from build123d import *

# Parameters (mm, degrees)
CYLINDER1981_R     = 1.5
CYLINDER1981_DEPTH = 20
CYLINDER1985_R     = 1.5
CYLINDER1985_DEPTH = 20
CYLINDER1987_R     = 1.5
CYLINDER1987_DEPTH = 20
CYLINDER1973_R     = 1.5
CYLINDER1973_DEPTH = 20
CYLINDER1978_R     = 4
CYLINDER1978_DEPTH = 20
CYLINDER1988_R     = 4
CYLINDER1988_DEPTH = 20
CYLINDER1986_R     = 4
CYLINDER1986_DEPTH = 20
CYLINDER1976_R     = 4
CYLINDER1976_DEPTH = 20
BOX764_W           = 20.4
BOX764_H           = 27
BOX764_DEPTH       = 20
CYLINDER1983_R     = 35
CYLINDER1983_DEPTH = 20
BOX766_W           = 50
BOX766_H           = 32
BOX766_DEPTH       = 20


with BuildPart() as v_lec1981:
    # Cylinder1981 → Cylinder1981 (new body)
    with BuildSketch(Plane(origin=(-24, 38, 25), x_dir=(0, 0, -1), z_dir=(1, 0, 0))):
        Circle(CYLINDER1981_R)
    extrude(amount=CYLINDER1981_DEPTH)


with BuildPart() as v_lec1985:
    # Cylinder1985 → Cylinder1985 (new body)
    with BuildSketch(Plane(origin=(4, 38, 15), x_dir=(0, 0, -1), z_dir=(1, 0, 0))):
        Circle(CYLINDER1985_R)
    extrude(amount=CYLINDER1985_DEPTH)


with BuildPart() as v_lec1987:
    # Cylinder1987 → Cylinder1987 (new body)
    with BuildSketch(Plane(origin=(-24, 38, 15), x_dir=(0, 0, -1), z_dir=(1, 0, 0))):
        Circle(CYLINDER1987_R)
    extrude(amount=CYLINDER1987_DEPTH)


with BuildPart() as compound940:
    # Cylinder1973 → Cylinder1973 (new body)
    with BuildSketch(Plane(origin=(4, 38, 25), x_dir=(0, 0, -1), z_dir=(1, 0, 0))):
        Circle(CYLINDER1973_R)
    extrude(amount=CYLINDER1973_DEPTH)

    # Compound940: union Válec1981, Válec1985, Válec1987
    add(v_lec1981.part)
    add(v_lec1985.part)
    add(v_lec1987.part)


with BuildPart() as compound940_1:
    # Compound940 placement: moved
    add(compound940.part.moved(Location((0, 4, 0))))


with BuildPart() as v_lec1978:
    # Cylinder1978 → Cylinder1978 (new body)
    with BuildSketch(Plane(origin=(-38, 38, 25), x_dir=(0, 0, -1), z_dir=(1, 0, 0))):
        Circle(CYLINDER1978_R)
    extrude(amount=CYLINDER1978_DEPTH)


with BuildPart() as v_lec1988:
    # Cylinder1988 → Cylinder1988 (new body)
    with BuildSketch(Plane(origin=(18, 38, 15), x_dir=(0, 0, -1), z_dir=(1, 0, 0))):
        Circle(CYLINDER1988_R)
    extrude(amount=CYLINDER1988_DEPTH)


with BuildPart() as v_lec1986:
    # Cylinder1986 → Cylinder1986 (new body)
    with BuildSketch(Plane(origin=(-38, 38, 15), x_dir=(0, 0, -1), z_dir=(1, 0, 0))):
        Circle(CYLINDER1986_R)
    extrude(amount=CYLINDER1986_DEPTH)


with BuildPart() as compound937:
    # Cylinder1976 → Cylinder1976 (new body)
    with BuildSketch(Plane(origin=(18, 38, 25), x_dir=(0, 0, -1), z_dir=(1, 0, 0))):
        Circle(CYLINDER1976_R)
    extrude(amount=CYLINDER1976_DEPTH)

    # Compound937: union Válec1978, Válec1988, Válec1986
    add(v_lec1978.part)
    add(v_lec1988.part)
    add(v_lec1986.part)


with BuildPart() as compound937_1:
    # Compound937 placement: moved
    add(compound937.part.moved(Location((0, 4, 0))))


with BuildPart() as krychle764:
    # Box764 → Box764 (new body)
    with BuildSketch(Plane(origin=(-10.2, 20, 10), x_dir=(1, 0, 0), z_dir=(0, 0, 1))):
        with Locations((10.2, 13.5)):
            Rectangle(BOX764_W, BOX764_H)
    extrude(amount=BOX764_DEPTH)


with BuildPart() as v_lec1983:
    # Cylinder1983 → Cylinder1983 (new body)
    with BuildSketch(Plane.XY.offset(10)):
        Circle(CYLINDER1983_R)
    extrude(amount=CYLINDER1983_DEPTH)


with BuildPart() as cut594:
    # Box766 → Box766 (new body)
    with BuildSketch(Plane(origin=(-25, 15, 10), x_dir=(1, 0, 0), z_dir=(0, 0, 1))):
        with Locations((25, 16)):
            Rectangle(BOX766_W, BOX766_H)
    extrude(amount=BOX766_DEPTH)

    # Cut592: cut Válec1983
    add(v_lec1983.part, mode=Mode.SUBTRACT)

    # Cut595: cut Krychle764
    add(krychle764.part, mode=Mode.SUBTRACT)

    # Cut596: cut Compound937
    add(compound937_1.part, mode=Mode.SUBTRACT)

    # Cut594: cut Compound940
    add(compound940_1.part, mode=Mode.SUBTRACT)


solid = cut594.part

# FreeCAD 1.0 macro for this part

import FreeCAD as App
import Part
import Sketcher
from FreeCAD import Vector
Q = App.Units.Quantity

doc = App.newDocument("Part")
body = doc.addObject("PartDesign::Body", "Body")

sketch1 = body.newObject("Sketcher::SketchObject", "Sketch")
sketch1.AttachmentSupport = (doc.getObject("YZ_Plane"), [""])
sketch1.MapMode = "FlatFace"
sketch1.AttachmentOffset = App.Placement(Vector(0, 0, -24), App.Rotation())
sketch1.addGeometry(Part.Circle(Vector(38, 25, 0), Vector(0, 0, 1), 1.5), False)
sketch1.addConstraint(Sketcher.Constraint("Diameter", 0, Q("3 mm")))
sketch1.addConstraint(Sketcher.Constraint("DistanceX", -1, 1, 0, 3, Q("38 mm")))
sketch1.addConstraint(Sketcher.Constraint("DistanceY", -1, 1, 0, 3, Q("25 mm")))
pad1 = body.newObject("PartDesign::Pad", "Pad")
pad1.Profile = sketch1
pad1.Length = 20
body2 = doc.addObject("PartDesign::Body", "Body001")

sketch2 = body2.newObject("Sketcher::SketchObject", "Sketch001")
sketch2.AttachmentSupport = (doc.getObject("YZ_Plane001"), [""])
sketch2.MapMode = "FlatFace"
sketch2.AttachmentOffset = App.Placement(Vector(0, 0, 4), App.Rotation())
sketch2.addGeometry(Part.Circle(Vector(38, 15, 0), Vector(0, 0, 1), 1.5), False)
sketch2.addConstraint(Sketcher.Constraint("Diameter", 0, Q("3 mm")))
sketch2.addConstraint(Sketcher.Constraint("DistanceX", -1, 1, 0, 3, Q("38 mm")))
sketch2.addConstraint(Sketcher.Constraint("DistanceY", -1, 1, 0, 3, Q("15 mm")))
pad2 = body2.newObject("PartDesign::Pad", "Pad001")
pad2.Profile = sketch2
pad2.Length = 20
body3 = doc.addObject("PartDesign::Body", "Body002")

sketch3 = body3.newObject("Sketcher::SketchObject", "Sketch002")
sketch3.AttachmentSupport = (doc.getObject("YZ_Plane002"), [""])
sketch3.MapMode = "FlatFace"
sketch3.AttachmentOffset = App.Placement(Vector(0, 0, -24), App.Rotation())
sketch3.addGeometry(Part.Circle(Vector(38, 15, 0), Vector(0, 0, 1), 1.5), False)
sketch3.addConstraint(Sketcher.Constraint("Diameter", 0, Q("3 mm")))
sketch3.addConstraint(Sketcher.Constraint("DistanceX", -1, 1, 0, 3, Q("38 mm")))
sketch3.addConstraint(Sketcher.Constraint("DistanceY", -1, 1, 0, 3, Q("15 mm")))
pad3 = body3.newObject("PartDesign::Pad", "Pad002")
pad3.Profile = sketch3
pad3.Length = 20
body4 = doc.addObject("PartDesign::Body", "Body003")
body4.AllowCompound = True

sketch4 = body4.newObject("Sketcher::SketchObject", "Sketch003")
sketch4.AttachmentSupport = (doc.getObject("YZ_Plane003"), [""])
sketch4.MapMode = "FlatFace"
sketch4.AttachmentOffset = App.Placement(Vector(0, 0, 4), App.Rotation())
sketch4.addGeometry(Part.Circle(Vector(38, 25, 0), Vector(0, 0, 1), 1.5), False)
sketch4.addConstraint(Sketcher.Constraint("Diameter", 0, Q("3 mm")))
sketch4.addConstraint(Sketcher.Constraint("DistanceX", -1, 1, 0, 3, Q("38 mm")))
sketch4.addConstraint(Sketcher.Constraint("DistanceY", -1, 1, 0, 3, Q("25 mm")))
pad4 = body4.newObject("PartDesign::Pad", "Pad003")
pad4.Profile = sketch4
pad4.Length = 20
doc.recompute()

boolean = body4.newObject("PartDesign::Boolean", "Boolean")
boolean.Type = "Fuse"
boolean.addObjects([body])
doc.recompute()

boolean2 = body4.newObject("PartDesign::Boolean", "Boolean001")
boolean2.Type = "Fuse"
boolean2.addObjects([body2])
doc.recompute()

boolean3 = body4.newObject("PartDesign::Boolean", "Boolean002")
boolean3.Type = "Fuse"
boolean3.addObjects([body3])
body5 = doc.addObject("PartDesign::Body", "Body004")
body5.AllowCompound = True
doc.recompute()

body4.Placement = App.Placement(Vector(0, 4, 0), App.Rotation(Vector(0, 0, 1), 0))
boolean4 = body5.newObject("PartDesign::Boolean", "Boolean003")
boolean4.Type = "Fuse"
boolean4.addObjects([body4])
body6 = doc.addObject("PartDesign::Body", "Body005")

sketch5 = body6.newObject("Sketcher::SketchObject", "Sketch004")
sketch5.AttachmentSupport = (doc.getObject("YZ_Plane005"), [""])
sketch5.MapMode = "FlatFace"
sketch5.AttachmentOffset = App.Placement(Vector(0, 0, -38), App.Rotation())
sketch5.addGeometry(Part.Circle(Vector(38, 25, 0), Vector(0, 0, 1), 4), False)
sketch5.addConstraint(Sketcher.Constraint("Diameter", 0, Q("8 mm")))
sketch5.addConstraint(Sketcher.Constraint("DistanceX", -1, 1, 0, 3, Q("38 mm")))
sketch5.addConstraint(Sketcher.Constraint("DistanceY", -1, 1, 0, 3, Q("25 mm")))
pad5 = body6.newObject("PartDesign::Pad", "Pad004")
pad5.Profile = sketch5
pad5.Length = 20
body7 = doc.addObject("PartDesign::Body", "Body006")

sketch6 = body7.newObject("Sketcher::SketchObject", "Sketch005")
sketch6.AttachmentSupport = (doc.getObject("YZ_Plane006"), [""])
sketch6.MapMode = "FlatFace"
sketch6.AttachmentOffset = App.Placement(Vector(0, 0, 18), App.Rotation())
sketch6.addGeometry(Part.Circle(Vector(38, 15, 0), Vector(0, 0, 1), 4), False)
sketch6.addConstraint(Sketcher.Constraint("Diameter", 0, Q("8 mm")))
sketch6.addConstraint(Sketcher.Constraint("DistanceX", -1, 1, 0, 3, Q("38 mm")))
sketch6.addConstraint(Sketcher.Constraint("DistanceY", -1, 1, 0, 3, Q("15 mm")))
pad6 = body7.newObject("PartDesign::Pad", "Pad005")
pad6.Profile = sketch6
pad6.Length = 20
body8 = doc.addObject("PartDesign::Body", "Body007")

sketch7 = body8.newObject("Sketcher::SketchObject", "Sketch006")
sketch7.AttachmentSupport = (doc.getObject("YZ_Plane007"), [""])
sketch7.MapMode = "FlatFace"
sketch7.AttachmentOffset = App.Placement(Vector(0, 0, -38), App.Rotation())
sketch7.addGeometry(Part.Circle(Vector(38, 15, 0), Vector(0, 0, 1), 4), False)
sketch7.addConstraint(Sketcher.Constraint("Diameter", 0, Q("8 mm")))
sketch7.addConstraint(Sketcher.Constraint("DistanceX", -1, 1, 0, 3, Q("38 mm")))
sketch7.addConstraint(Sketcher.Constraint("DistanceY", -1, 1, 0, 3, Q("15 mm")))
pad7 = body8.newObject("PartDesign::Pad", "Pad006")
pad7.Profile = sketch7
pad7.Length = 20
body9 = doc.addObject("PartDesign::Body", "Body008")
body9.AllowCompound = True

sketch8 = body9.newObject("Sketcher::SketchObject", "Sketch007")
sketch8.AttachmentSupport = (doc.getObject("YZ_Plane008"), [""])
sketch8.MapMode = "FlatFace"
sketch8.AttachmentOffset = App.Placement(Vector(0, 0, 18), App.Rotation())
sketch8.addGeometry(Part.Circle(Vector(38, 25, 0), Vector(0, 0, 1), 4), False)
sketch8.addConstraint(Sketcher.Constraint("Diameter", 0, Q("8 mm")))
sketch8.addConstraint(Sketcher.Constraint("DistanceX", -1, 1, 0, 3, Q("38 mm")))
sketch8.addConstraint(Sketcher.Constraint("DistanceY", -1, 1, 0, 3, Q("25 mm")))
pad8 = body9.newObject("PartDesign::Pad", "Pad007")
pad8.Profile = sketch8
pad8.Length = 20
doc.recompute()

boolean5 = body9.newObject("PartDesign::Boolean", "Boolean004")
boolean5.Type = "Fuse"
boolean5.addObjects([body6])
doc.recompute()

boolean6 = body9.newObject("PartDesign::Boolean", "Boolean005")
boolean6.Type = "Fuse"
boolean6.addObjects([body7])
doc.recompute()

boolean7 = body9.newObject("PartDesign::Boolean", "Boolean006")
boolean7.Type = "Fuse"
boolean7.addObjects([body8])
body10 = doc.addObject("PartDesign::Body", "Body009")
body10.AllowCompound = True
doc.recompute()

body9.Placement = App.Placement(Vector(0, 4, 0), App.Rotation(Vector(0, 0, 1), 0))
boolean8 = body10.newObject("PartDesign::Boolean", "Boolean007")
boolean8.Type = "Fuse"
boolean8.addObjects([body9])
body11 = doc.addObject("PartDesign::Body", "Body010")

sketch9 = body11.newObject("Sketcher::SketchObject", "Sketch008")
sketch9.AttachmentSupport = (doc.getObject("XY_Plane010"), [""])
sketch9.MapMode = "FlatFace"
sketch9.AttachmentOffset = App.Placement(Vector(0, 0, 10), App.Rotation())
sketch9.addGeometry(Part.LineSegment(Vector(-10, 47, 0), Vector(-10, 20, 0)), False)
sketch9.addGeometry(Part.LineSegment(Vector(-10, 20, 0), Vector(10, 20, 0)), False)
sketch9.addGeometry(Part.LineSegment(Vector(10, 20, 0), Vector(10, 47, 0)), False)
sketch9.addGeometry(Part.LineSegment(Vector(10, 47, 0), Vector(-10, 47, 0)), False)
sketch9.addConstraint(Sketcher.Constraint("Coincident", 0, 2, 1, 1))
sketch9.addConstraint(Sketcher.Constraint("Coincident", 1, 2, 2, 1))
sketch9.addConstraint(Sketcher.Constraint("Coincident", 2, 2, 3, 1))
sketch9.addConstraint(Sketcher.Constraint("Coincident", 3, 2, 0, 1))
sketch9.addConstraint(Sketcher.Constraint("Vertical", 0))
sketch9.addConstraint(Sketcher.Constraint("Horizontal", 1))
sketch9.addConstraint(Sketcher.Constraint("Vertical", 2))
sketch9.addConstraint(Sketcher.Constraint("Horizontal", 3))
sketch9.addConstraint(Sketcher.Constraint("DistanceY", 0, 2, 0, 1, Q("27 mm")))
sketch9.addConstraint(Sketcher.Constraint("DistanceX", 1, 1, 1, 2, Q("20.4 mm")))
sketch9.addConstraint(Sketcher.Constraint("DistanceY", -1, 1, 0, 2, Q("20 mm")))
sketch9.addConstraint(Sketcher.Constraint("DistanceX", 0, 2, -1, 1, Q("10.2 mm")))
pad9 = body11.newObject("PartDesign::Pad", "Pad008")
pad9.Profile = sketch9
pad9.Length = 20
body12 = doc.addObject("PartDesign::Body", "Body011")

sketch10 = body12.newObject("Sketcher::SketchObject", "Sketch009")
sketch10.AttachmentSupport = (doc.getObject("XY_Plane011"), [""])
sketch10.MapMode = "FlatFace"
sketch10.AttachmentOffset = App.Placement(Vector(0, 0, 10), App.Rotation())
sketch10.addGeometry(Part.Circle(Vector(0, 0, 0), Vector(0, 0, 1), 35), False)
sketch10.addConstraint(Sketcher.Constraint("Coincident", 0, 3, -1, 1))
sketch10.addConstraint(Sketcher.Constraint("Diameter", 0, Q("70 mm")))
pad10 = body12.newObject("PartDesign::Pad", "Pad009")
pad10.Profile = sketch10
pad10.Length = 20
body13 = doc.addObject("PartDesign::Body", "Body012")
body13.AllowCompound = True

sketch11 = body13.newObject("Sketcher::SketchObject", "Sketch010")
sketch11.AttachmentSupport = (doc.getObject("XY_Plane012"), [""])
sketch11.MapMode = "FlatFace"
sketch11.AttachmentOffset = App.Placement(Vector(0, 0, 10), App.Rotation())
sketch11.addGeometry(Part.LineSegment(Vector(-25, 47, 0), Vector(-25, 15, 0)), False)
sketch11.addGeometry(Part.LineSegment(Vector(-25, 15, 0), Vector(25, 15, 0)), False)
sketch11.addGeometry(Part.LineSegment(Vector(25, 15, 0), Vector(25, 47, 0)), False)
sketch11.addGeometry(Part.LineSegment(Vector(25, 47, 0), Vector(-25, 47, 0)), False)
sketch11.addConstraint(Sketcher.Constraint("Coincident", 0, 2, 1, 1))
sketch11.addConstraint(Sketcher.Constraint("Coincident", 1, 2, 2, 1))
sketch11.addConstraint(Sketcher.Constraint("Coincident", 2, 2, 3, 1))
sketch11.addConstraint(Sketcher.Constraint("Coincident", 3, 2, 0, 1))
sketch11.addConstraint(Sketcher.Constraint("Vertical", 0))
sketch11.addConstraint(Sketcher.Constraint("Horizontal", 1))
sketch11.addConstraint(Sketcher.Constraint("Vertical", 2))
sketch11.addConstraint(Sketcher.Constraint("Horizontal", 3))
sketch11.addConstraint(Sketcher.Constraint("DistanceX", 1, 1, 1, 2, Q("50 mm")))
sketch11.addConstraint(Sketcher.Constraint("DistanceY", 0, 2, 0, 1, Q("32 mm")))
sketch11.addConstraint(Sketcher.Constraint("DistanceX", 0, 2, -1, 1, Q("25 mm")))
sketch11.addConstraint(Sketcher.Constraint("DistanceY", -1, 1, 0, 2, Q("15 mm")))
pad11 = body13.newObject("PartDesign::Pad", "Pad010")
pad11.Profile = sketch11
pad11.Length = 20
doc.recompute()

boolean9 = body13.newObject("PartDesign::Boolean", "Boolean008")
boolean9.Type = "Cut"
boolean9.addObjects([body12])
doc.recompute()

boolean10 = body13.newObject("PartDesign::Boolean", "Boolean009")
boolean10.Type = "Cut"
boolean10.addObjects([body11])
doc.recompute()

boolean11 = body13.newObject("PartDesign::Boolean", "Boolean010")
boolean11.Type = "Cut"
boolean11.addObjects([body10])
doc.recompute()

boolean12 = body13.newObject("PartDesign::Boolean", "Boolean011")
boolean12.Type = "Cut"
boolean12.addObjects([body5])

doc.recompute()
